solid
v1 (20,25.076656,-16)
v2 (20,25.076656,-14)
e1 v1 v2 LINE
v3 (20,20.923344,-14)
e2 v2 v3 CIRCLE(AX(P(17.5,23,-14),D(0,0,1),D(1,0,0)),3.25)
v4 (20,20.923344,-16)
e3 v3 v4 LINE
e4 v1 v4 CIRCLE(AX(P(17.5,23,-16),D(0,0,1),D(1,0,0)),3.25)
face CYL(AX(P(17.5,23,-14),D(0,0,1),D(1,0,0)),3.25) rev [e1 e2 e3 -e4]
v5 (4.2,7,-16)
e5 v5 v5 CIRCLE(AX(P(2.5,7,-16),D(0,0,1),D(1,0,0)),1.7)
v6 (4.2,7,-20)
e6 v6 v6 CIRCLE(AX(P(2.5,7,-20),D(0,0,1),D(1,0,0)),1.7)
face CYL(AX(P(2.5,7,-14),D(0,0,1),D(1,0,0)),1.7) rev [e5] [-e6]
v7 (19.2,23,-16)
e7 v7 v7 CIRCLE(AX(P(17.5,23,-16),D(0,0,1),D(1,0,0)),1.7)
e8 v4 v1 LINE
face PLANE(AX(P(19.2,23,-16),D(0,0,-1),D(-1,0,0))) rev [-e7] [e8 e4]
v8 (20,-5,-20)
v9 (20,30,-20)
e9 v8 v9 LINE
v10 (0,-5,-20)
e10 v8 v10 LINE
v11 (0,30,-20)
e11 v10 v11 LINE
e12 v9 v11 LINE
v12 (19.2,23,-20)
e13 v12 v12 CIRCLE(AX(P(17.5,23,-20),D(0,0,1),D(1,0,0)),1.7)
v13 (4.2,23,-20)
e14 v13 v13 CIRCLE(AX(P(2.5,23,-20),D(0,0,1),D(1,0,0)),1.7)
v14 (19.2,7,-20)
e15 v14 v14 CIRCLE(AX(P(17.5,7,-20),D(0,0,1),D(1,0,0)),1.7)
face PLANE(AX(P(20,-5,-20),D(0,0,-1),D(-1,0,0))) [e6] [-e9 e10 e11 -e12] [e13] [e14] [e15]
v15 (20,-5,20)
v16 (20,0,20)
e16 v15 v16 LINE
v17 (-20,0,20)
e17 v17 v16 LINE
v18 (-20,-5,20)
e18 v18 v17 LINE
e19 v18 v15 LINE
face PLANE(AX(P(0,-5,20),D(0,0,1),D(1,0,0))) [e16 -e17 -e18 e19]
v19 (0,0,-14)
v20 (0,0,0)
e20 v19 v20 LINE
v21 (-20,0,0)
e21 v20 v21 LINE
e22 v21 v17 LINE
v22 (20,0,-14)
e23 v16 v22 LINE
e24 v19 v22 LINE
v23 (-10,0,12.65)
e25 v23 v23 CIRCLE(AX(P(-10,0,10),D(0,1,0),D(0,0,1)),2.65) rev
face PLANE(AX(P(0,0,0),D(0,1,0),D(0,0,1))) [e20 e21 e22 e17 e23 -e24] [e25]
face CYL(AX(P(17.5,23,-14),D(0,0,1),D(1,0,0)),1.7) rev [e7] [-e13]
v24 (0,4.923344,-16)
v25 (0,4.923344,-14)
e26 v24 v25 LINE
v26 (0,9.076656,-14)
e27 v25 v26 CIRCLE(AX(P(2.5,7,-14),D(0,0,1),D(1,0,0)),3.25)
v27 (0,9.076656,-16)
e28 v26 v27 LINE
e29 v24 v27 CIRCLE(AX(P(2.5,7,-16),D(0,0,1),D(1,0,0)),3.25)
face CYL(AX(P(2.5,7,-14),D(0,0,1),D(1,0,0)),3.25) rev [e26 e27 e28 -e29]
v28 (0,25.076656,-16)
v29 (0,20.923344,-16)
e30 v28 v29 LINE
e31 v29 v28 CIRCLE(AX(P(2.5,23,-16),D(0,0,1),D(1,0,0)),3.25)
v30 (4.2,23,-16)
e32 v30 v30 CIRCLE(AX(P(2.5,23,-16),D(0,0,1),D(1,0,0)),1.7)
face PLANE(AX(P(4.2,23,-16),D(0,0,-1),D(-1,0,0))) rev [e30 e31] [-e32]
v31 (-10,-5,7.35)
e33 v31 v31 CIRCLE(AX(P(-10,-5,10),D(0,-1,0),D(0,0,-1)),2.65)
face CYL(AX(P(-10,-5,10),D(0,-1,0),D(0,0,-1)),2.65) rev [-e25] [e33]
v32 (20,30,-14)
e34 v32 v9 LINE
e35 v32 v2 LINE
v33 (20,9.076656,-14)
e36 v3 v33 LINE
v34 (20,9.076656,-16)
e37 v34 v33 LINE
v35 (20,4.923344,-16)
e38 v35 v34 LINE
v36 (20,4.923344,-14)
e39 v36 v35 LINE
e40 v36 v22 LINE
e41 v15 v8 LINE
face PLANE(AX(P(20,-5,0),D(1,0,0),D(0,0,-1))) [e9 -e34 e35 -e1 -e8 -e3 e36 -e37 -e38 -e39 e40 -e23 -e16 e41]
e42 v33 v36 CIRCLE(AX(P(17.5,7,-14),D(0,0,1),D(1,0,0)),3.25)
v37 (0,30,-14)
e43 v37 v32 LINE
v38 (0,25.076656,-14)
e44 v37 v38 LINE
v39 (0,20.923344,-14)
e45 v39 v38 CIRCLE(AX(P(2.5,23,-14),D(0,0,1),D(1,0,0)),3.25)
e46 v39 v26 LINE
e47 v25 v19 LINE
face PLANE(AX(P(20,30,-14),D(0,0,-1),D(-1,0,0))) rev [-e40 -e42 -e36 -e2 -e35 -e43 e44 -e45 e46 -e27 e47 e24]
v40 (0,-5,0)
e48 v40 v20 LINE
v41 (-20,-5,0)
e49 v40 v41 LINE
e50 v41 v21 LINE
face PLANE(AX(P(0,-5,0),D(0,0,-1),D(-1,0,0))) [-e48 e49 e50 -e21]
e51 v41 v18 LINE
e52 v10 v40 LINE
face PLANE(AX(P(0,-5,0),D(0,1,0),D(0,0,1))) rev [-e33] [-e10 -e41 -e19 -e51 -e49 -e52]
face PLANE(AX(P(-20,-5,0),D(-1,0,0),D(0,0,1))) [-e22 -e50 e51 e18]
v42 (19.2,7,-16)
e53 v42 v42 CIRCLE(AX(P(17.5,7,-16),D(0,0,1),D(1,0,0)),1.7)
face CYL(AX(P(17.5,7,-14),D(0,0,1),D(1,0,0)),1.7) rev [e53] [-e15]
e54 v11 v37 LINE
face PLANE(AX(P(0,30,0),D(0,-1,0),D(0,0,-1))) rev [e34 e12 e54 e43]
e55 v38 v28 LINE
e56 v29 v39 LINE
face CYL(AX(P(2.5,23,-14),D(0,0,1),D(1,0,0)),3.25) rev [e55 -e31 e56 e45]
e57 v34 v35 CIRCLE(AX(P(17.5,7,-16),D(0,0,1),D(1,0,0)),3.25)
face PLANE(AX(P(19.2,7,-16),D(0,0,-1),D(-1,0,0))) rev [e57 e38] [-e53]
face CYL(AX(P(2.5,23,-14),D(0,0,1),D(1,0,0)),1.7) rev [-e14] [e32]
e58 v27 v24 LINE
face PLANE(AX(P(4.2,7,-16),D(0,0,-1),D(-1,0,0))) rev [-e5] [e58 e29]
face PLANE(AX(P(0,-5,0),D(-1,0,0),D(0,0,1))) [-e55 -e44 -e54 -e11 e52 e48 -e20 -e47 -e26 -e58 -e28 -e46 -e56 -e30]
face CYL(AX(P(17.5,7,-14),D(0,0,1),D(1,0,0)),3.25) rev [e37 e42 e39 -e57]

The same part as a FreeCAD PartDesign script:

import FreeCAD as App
import Part
import Sketcher
from FreeCAD import Vector
Q = App.Units.Quantity

doc = App.newDocument("Part")
body = doc.addObject("PartDesign::Body", "Body")

# Sketch on XZ plane
sketch1 = doc.addObject("Sketcher::SketchObject", "Sketch")
body.addObject(sketch1)
sketch1.AttachmentSupport = (doc.XZ_Plane, [""])
sketch1.MapMode = "FlatFace"
sketch1.addGeometry(Part.LineSegment(Vector(0, 0, 0), Vector(-20, 0, 0)), False)
sketch1.addGeometry(Part.LineSegment(Vector(-20, 0, 0), Vector(-20, 20, 0)), False)
sketch1.addGeometry(Part.LineSegment(Vector(-20, 20, 0), Vector(20, 20, 0)), False)
sketch1.addGeometry(Part.LineSegment(Vector(20, 20, 0), Vector(20, -20, 0)), False)
sketch1.addGeometry(Part.LineSegment(Vector(20, -20, 0), Vector(0, -20, 0)), False)
sketch1.addGeometry(Part.LineSegment(Vector(0, -20, 0), Vector(0, 0, 0)), False)
sketch1.addConstraint(Sketcher.Constraint("Coincident", 0, 2, 1, 1))
sketch1.addConstraint(Sketcher.Constraint("Coincident", 1, 2, 2, 1))
sketch1.addConstraint(Sketcher.Constraint("Coincident", 2, 2, 3, 1))
sketch1.addConstraint(Sketcher.Constraint("Coincident", 3, 2, 4, 1))
sketch1.addConstraint(Sketcher.Constraint("Coincident", 4, 2, 5, 1))
sketch1.addConstraint(Sketcher.Constraint("Coincident", 5, 2, 0, 1))
sketch1.addConstraint(Sketcher.Constraint("Horizontal", 0))
sketch1.addConstraint(Sketcher.Constraint("Vertical", 1))
sketch1.addConstraint(Sketcher.Constraint("Horizontal", 2))
sketch1.addConstraint(Sketcher.Constraint("Vertical", 3))
sketch1.addConstraint(Sketcher.Constraint("Horizontal", 4))
sketch1.addConstraint(Sketcher.Constraint("Vertical", 5))
sketch1.addConstraint(Sketcher.Constraint("Coincident", 5, 2, -1, 1))
sketch1.addConstraint(Sketcher.Constraint("Symmetric", 1, 2, 3, 2, -1, 1))
sketch1.addConstraint(Sketcher.Constraint("Equal", 4, 1))
sketch1.addConstraint(Sketcher.Constraint("DistanceX", 0, 2, 0, 1, Q("20 mm")))
pad1 = doc.addObject("PartDesign::Pad", "Pad")
body.addObject(pad1)
pad1.Profile = sketch1
pad1.Length = 5

# Sketch on XZ plane
sketch2 = doc.addObject("Sketcher::SketchObject", "Sketch001")
body.addObject(sketch2)
sketch2.AttachmentSupport = (doc.XZ_Plane, [""])
sketch2.MapMode = "FlatFace"
sketch2.addGeometry(Part.LineSegment(Vector(0, -20, 0), Vector(0, -14, 0)), False)
sketch2.addGeometry(Part.LineSegment(Vector(0, -14, 0), Vector(20, -14, 0)), False)
sketch2.addGeometry(Part.LineSegment(Vector(20, -14, 0), Vector(20, -20, 0)), False)
sketch2.addGeometry(Part.LineSegment(Vector(20, -20, 0), Vector(0, -20, 0)), False)
sketch2.addConstraint(Sketcher.Constraint("Coincident", 0, 2, 1, 1))
sketch2.addConstraint(Sketcher.Constraint("Coincident", 1, 2, 2, 1))
sketch2.addConstraint(Sketcher.Constraint("Coincident", 2, 2, 3, 1))
sketch2.addConstraint(Sketcher.Constraint("Coincident", 3, 2, 0, 1))
sketch2.addConstraint(Sketcher.Constraint("Vertical", 0))
sketch2.addConstraint(Sketcher.Constraint("Horizontal", 1))
sketch2.addConstraint(Sketcher.Constraint("Vertical", 2))
sketch2.addConstraint(Sketcher.Constraint("Horizontal", 3))
sketch2.addConstraint(Sketcher.Constraint("PointOnObject", 0, 2, -2))
sketch2.addConstraint(Sketcher.Constraint("DistanceX", 1, 1, 1, 2, Q("20 mm")))
sketch2.addConstraint(Sketcher.Constraint("DistanceY", 0, 1, 0, 2, Q("6 mm")))
sketch2.addConstraint(Sketcher.Constraint("DistanceY", 0, 2, -1, 1, Q("14 mm")))
pad2 = doc.addObject("PartDesign::Pad", "Pad001")
body.addObject(pad2)
pad2.Profile = sketch2
pad2.Length = 30
pad2.Reversed = True

# Sketch on XY plane
sketch3 = doc.addObject("Sketcher::SketchObject", "Sketch002")
body.addObject(sketch3)
sketch3.AttachmentSupport = (doc.XY_Plane, [""])
sketch3.MapMode = "FlatFace"
sketch3.AttachmentOffset = App.Placement(Vector(0, 0, -14), App.Rotation())
sketch3.addGeometry(Part.Circle(Vector(2.5, 7, 0), Vector(0, 0, 1), 1.5), False)
sketch3.addGeometry(Part.Circle(Vector(2.5, 23, 0), Vector(0, 0, 1), 1.5), False)
sketch3.addGeometry(Part.Circle(Vector(17.5, 7, 0), Vector(0, 0, 1), 1.5), False)
sketch3.addGeometry(Part.Circle(Vector(17.5, 23, 0), Vector(0, 0, 1), 1.5), False)
sketch3.addConstraint(Sketcher.Constraint("Equal", 0, 1))
sketch3.addConstraint(Sketcher.Constraint("Equal", 1, 2))
sketch3.addConstraint(Sketcher.Constraint("Equal", 2, 3))
sketch3.addConstraint(Sketcher.Constraint("Horizontal", 0, 3, 2, 3))
sketch3.addConstraint(Sketcher.Constraint("Horizontal", 1, 3, 3, 3))
sketch3.addConstraint(Sketcher.Constraint("Vertical", 0, 3, 1, 3))
sketch3.addConstraint(Sketcher.Constraint("Vertical", 2, 3, 3, 3))
sketch3.addConstraint(Sketcher.Constraint("Diameter", 0, Q("3 mm")))
sketch3.addConstraint(Sketcher.Constraint("DistanceY", -1, 1, 0, 3, Q("7 mm")))
sketch3.addConstraint(Sketcher.Constraint("DistanceY", -1, 1, 1, 3, Q("23 mm")))
sketch3.addConstraint(Sketcher.Constraint("DistanceX", 0, 3, 2, 3, Q("15 mm")))
sketch3.addConstraint(Sketcher.Constraint("DistanceX", -1, 1, 0, 3, Q("2.5 mm")))
pocket1 = doc.addObject("PartDesign::Pocket", "Pocket")
body.addObject(pocket1)
pocket1.Profile = sketch3
pocket1.Type = "ThroughAll"

# Sketch on XY plane
sketch4 = doc.addObject("Sketcher::SketchObject", "Sketch003")
body.addObject(sketch4)
sketch4.AttachmentSupport = (doc.XY_Plane, [""])
sketch4.MapMode = "FlatFace"
sketch4.AttachmentOffset = App.Placement(Vector(0, 0, -14), App.Rotation())
sketch4.addGeometry(Part.Circle(Vector(2.5, 23, 0), Vector(0, 0, 1), 1.7), False)
sketch4.addGeometry(Part.Circle(Vector(2.5, 7, 0), Vector(0, 0, 1), 1.7), False)
sketch4.addGeometry(Part.Circle(Vector(17.5, 7, 0), Vector(0, 0, 1), 1.7), False)
sketch4.addGeometry(Part.Circle(Vector(17.5, 23, 0), Vector(0, 0, 1), 1.7), False)
sketch4.addConstraint(Sketcher.Constraint("Equal", 0, 1))
sketch4.addConstraint(Sketcher.Constraint("Equal", 1, 2))
sketch4.addConstraint(Sketcher.Constraint("Equal", 2, 3))
sketch4.addConstraint(Sketcher.Constraint("Horizontal", 1, 3, 2, 3))
sketch4.addConstraint(Sketcher.Constraint("Horizontal", 0, 3, 3, 3))
sketch4.addConstraint(Sketcher.Constraint("Vertical", 0, 3, 1, 3))
sketch4.addConstraint(Sketcher.Constraint("Vertical", 2, 3, 3, 3))
sketch4.addConstraint(Sketcher.Constraint("Diameter", 0, Q("3.4 mm")))
sketch4.addConstraint(Sketcher.Constraint("DistanceY", -1, 1, 0, 3, Q("23 mm")))
sketch4.addConstraint(Sketcher.Constraint("DistanceY", -1, 1, 1, 3, Q("7 mm")))
sketch4.addConstraint(Sketcher.Constraint("DistanceX", 1, 3, 2, 3, Q("15 mm")))
sketch4.addConstraint(Sketcher.Constraint("DistanceX", -1, 1, 0, 3, Q("2.5 mm")))
doc.recompute()
hole = doc.addObject("PartDesign::Hole", "Hole")
body.addObject(hole)
hole.Profile = sketch4
hole.ThreadType = "None"
hole.Diameter = 3.4
hole.DepthType = "ThroughAll"
hole.HoleCutType = "Counterbore"
hole.HoleCutDiameter = 6.5
hole.HoleCutDepth = 2

# Sketch on XZ plane
sketch5 = doc.addObject("Sketcher::SketchObject", "Sketch004")
body.addObject(sketch5)
sketch5.AttachmentSupport = (doc.XZ_Plane, [""])
sketch5.MapMode = "FlatFace"
sketch5.AttachmentOffset = App.Placement(Vector(0, 0, 5), App.Rotation())
sketch5.addGeometry(Part.Circle(Vector(-10, 10, 0), Vector(0, 0, 1), 2.5), False)
sketch5.addConstraint(Sketcher.Constraint("Diameter", 0, Q("5 mm")))
sketch5.addConstraint(Sketcher.Constraint("DistanceX", 0, 3, -1, 1, Q("10 mm")))
sketch5.addConstraint(Sketcher.Constraint("DistanceY", -1, 1, 0, 3, Q("10 mm")))
pocket2 = doc.addObject("PartDesign::Pocket", "Pocket001")
body.addObject(pocket2)
pocket2.Profile = sketch5
pocket2.Type = "UpToFirst"

# Sketch on XZ plane
sketch6 = doc.addObject("Sketcher::SketchObject", "Sketch005")
body.addObject(sketch6)
sketch6.AttachmentSupport = (doc.XZ_Plane, [""])
sketch6.MapMode = "FlatFace"
sketch6.AttachmentOffset = App.Placement(Vector(0, 0, 5), App.Rotation())
sketch6.addGeometry(Part.Circle(Vector(-10, 10, 0), Vector(0, 0, 1), 2.6), False)
sketch6.addConstraint(Sketcher.Constraint("Diameter", 0, Q("5.3 mm")))
sketch6.addConstraint(Sketcher.Constraint("DistanceX", 0, 3, -1, 1, Q("10 mm")))
sketch6.addConstraint(Sketcher.Constraint("DistanceY", -1, 1, 0, 3, Q("10 mm")))
doc.recompute()
hole2 = doc.addObject("PartDesign::Hole", "Hole001")
body.addObject(hole2)
hole2.Profile = sketch6
hole2.ThreadType = "None"
hole2.Diameter = 5.3
hole2.DepthType = "Dimension"
hole2.Depth = 5
hole2.DrillPoint = "Angled"
hole2.DrillPointAngle = 118

doc.recompute()
